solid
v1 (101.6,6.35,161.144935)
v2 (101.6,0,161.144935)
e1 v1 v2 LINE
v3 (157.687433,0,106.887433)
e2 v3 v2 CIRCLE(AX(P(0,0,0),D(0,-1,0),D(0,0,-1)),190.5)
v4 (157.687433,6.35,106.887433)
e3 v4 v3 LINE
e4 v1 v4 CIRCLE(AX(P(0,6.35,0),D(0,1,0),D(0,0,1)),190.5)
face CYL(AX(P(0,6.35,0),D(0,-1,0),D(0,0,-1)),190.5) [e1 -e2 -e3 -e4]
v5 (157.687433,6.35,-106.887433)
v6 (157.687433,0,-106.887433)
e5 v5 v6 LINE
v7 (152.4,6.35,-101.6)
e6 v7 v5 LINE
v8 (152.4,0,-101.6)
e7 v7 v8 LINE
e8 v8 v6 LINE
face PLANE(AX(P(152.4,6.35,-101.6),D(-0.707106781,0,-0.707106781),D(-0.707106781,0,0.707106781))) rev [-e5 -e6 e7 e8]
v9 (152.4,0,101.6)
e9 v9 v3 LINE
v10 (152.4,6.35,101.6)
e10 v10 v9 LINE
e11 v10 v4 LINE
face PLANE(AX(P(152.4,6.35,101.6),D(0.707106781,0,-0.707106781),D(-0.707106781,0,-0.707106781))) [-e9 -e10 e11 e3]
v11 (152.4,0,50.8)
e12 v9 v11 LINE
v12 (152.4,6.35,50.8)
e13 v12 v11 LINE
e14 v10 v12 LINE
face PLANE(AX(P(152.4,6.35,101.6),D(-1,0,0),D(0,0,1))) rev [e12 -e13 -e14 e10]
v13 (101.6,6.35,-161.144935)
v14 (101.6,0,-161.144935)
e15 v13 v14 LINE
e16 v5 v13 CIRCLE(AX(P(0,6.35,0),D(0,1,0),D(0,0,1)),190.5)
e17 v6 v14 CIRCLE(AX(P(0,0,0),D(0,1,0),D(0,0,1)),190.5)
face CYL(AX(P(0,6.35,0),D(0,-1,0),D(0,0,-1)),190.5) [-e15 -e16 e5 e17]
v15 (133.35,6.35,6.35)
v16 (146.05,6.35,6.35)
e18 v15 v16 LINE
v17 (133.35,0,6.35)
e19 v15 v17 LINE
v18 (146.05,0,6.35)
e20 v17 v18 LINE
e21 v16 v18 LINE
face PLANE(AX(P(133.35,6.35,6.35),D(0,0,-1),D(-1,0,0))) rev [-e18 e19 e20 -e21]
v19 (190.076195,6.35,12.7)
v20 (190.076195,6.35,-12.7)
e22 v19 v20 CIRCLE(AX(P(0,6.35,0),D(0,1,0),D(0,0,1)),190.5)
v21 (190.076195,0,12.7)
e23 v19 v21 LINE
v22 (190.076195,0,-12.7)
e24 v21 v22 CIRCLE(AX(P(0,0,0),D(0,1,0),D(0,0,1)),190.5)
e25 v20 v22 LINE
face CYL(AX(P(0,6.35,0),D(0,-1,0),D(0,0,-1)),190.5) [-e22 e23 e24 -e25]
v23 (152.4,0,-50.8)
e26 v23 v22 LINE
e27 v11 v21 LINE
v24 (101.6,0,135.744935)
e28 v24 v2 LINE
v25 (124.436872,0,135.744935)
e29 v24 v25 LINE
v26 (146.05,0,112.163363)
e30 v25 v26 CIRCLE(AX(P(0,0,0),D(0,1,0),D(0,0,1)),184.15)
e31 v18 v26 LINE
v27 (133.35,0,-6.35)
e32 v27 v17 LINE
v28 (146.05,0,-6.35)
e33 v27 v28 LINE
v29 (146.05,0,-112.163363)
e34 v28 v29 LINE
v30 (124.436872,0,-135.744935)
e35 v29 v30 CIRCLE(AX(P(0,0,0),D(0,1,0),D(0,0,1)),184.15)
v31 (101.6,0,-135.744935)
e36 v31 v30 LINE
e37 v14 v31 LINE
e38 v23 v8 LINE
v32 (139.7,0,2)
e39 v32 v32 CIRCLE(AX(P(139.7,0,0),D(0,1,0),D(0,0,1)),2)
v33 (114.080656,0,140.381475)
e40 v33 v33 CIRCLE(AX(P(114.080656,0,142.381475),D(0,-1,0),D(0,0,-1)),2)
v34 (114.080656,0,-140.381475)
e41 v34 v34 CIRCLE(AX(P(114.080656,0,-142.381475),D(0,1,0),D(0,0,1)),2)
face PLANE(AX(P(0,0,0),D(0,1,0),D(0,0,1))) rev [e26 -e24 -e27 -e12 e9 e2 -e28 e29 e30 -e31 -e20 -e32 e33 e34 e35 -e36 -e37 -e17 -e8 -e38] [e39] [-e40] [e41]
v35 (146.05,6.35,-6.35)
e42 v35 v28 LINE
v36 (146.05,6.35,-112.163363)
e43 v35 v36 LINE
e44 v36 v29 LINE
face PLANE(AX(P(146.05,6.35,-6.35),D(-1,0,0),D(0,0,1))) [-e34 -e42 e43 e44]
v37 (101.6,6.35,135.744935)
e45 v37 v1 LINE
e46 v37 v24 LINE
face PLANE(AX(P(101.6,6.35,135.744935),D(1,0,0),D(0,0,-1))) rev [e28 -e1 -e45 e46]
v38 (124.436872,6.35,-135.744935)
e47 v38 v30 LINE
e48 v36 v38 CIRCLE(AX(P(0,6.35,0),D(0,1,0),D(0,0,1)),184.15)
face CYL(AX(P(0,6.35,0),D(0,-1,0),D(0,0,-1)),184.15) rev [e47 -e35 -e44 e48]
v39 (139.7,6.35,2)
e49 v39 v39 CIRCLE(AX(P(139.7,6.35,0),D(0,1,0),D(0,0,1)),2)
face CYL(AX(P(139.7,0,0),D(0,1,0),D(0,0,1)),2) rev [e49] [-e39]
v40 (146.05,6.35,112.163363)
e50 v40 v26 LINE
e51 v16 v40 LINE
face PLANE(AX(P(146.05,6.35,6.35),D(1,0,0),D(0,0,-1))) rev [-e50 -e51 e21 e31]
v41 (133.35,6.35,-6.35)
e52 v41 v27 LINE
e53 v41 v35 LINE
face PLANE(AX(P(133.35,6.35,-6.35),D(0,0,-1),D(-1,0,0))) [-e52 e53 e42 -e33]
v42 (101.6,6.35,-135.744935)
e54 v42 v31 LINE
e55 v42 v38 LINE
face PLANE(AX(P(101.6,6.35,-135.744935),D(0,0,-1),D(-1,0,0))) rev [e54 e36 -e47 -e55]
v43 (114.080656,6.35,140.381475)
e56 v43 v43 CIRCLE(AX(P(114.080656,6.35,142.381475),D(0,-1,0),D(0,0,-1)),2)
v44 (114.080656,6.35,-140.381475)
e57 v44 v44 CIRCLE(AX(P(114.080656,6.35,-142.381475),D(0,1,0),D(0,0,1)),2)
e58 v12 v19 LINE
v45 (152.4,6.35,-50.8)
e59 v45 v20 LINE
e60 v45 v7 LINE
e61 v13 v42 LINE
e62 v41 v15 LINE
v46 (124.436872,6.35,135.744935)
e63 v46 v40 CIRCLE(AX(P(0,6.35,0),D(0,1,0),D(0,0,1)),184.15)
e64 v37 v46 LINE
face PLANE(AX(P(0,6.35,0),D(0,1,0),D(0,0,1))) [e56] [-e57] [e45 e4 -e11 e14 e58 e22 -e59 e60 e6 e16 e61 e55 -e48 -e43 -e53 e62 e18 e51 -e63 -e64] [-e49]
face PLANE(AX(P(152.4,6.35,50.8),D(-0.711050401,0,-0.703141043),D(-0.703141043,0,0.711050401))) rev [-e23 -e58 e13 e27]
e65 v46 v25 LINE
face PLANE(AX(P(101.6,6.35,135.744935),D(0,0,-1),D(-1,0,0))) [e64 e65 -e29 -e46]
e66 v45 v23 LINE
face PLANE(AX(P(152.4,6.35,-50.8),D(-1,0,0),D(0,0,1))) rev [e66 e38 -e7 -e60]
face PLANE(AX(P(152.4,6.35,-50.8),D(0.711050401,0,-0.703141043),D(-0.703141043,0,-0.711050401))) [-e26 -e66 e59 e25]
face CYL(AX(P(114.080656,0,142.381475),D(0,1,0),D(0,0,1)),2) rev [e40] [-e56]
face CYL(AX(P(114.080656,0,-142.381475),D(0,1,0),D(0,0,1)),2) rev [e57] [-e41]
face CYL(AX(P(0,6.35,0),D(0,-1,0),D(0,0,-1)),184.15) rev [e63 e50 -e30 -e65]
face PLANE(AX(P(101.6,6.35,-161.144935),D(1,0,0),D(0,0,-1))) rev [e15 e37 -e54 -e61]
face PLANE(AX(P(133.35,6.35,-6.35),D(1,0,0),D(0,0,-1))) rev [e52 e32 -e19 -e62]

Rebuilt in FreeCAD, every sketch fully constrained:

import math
import FreeCAD as App
import Part
import Sketcher

V = App.Vector
Q = App.Units.Quantity

doc = App.newDocument("Part")
body = doc.addObject("PartDesign::Body", "Body")

# Sketch on XZ plane
sketch1 = body.newObject("Sketcher::SketchObject", "Sketch")
sketch1.AttachmentSupport = (doc.getObject("XZ_Plane"), [""])
sketch1.MapMode = "FlatFace"
sketch1.addGeometry(Part.LineSegment(V(152.4, 101.6, 0), V(152.4, 50.8, 0)), False)
sketch1.addGeometry(Part.LineSegment(V(152.4, 50.8, 0), V(190.076195, 12.7, 0)), False)
sketch1.addGeometry(Part.ArcOfCircle(Part.Circle(V(0, 0, 0), V(0, 0, 1), 190.5), math.radians(-3.822554), math.radians(3.822554)), False)
sketch1.addGeometry(Part.LineSegment(V(190.076195, -12.7, 0), V(152.4, -50.8, 0)), False)
sketch1.addGeometry(Part.LineSegment(V(152.4, -50.8, 0), V(152.4, -101.6, 0)), False)
sketch1.addGeometry(Part.LineSegment(V(152.4, -101.6, 0), V(157.687433, -106.887433, 0)), False)
sketch1.addGeometry(Part.ArcOfCircle(Part.Circle(V(0, 0, 0), V(0, 0, 1), 190.5), math.radians(-36.869898), math.radians(-34.131135)), False)
sketch1.addGeometry(Part.ArcOfCircle(Part.Circle(V(0, 0, 0), V(0, 0, 1), 190.5), math.radians(-57.769047), math.radians(-36.869898)), False)
sketch1.addGeometry(Part.LineSegment(V(101.6, -161.144935, 0), V(101.6, -135.744935, 0)), False)
sketch1.addGeometry(Part.LineSegment(V(101.6, -135.744935, 0), V(124.436872, -135.744935, 0)), False)
sketch1.addGeometry(Part.ArcOfCircle(Part.Circle(V(0, 0, 0), V(0, 0, 1), 184.15), math.radians(-47.488632), math.radians(-37.523513)), False)
sketch1.addGeometry(Part.LineSegment(V(146.05, -112.163363, 0), V(146.05, -6.35, 0)), False)
sketch1.addGeometry(Part.LineSegment(V(146.05, -6.35, 0), V(133.35, -6.35, 0)), False)
sketch1.addGeometry(Part.LineSegment(V(133.35, -6.35, 0), V(133.35, 6.35, 0)), False)
sketch1.addGeometry(Part.LineSegment(V(133.35, 6.35, 0), V(146.05, 6.35, 0)), False)
sketch1.addGeometry(Part.LineSegment(V(146.05, 6.35, 0), V(146.05, 112.163363, 0)), False)
sketch1.addGeometry(Part.ArcOfCircle(Part.Circle(V(0, 0, 0), V(0, 0, 1), 184.15), math.radians(37.523513), math.radians(47.488632)), False)
sketch1.addGeometry(Part.LineSegment(V(124.436872, 135.744935, 0), V(101.6, 135.744935, 0)), False)
sketch1.addGeometry(Part.LineSegment(V(101.6, 135.744935, 0), V(101.6, 161.144935, 0)), False)
sketch1.addGeometry(Part.ArcOfCircle(Part.Circle(V(0, 0, 0), V(0, 0, 1), 190.5), math.radians(36.869898), math.radians(57.769047)), False)
sketch1.addGeometry(Part.ArcOfCircle(Part.Circle(V(0, 0, 0), V(0, 0, 1), 190.5), math.radians(34.131135), math.radians(36.869898)), False)
sketch1.addGeometry(Part.LineSegment(V(157.687433, 106.887433, 0), V(152.4, 101.6, 0)), False)
sketch1.addConstraint(Sketcher.Constraint("Coincident", 0, 2, 1, 1))
sketch1.addConstraint(Sketcher.Constraint("Coincident", 1, 2, 2, 2))
sketch1.addConstraint(Sketcher.Constraint("Coincident", 2, 1, 3, 1))
sketch1.addConstraint(Sketcher.Constraint("Coincident", 3, 2, 4, 1))
sketch1.addConstraint(Sketcher.Constraint("Coincident", 4, 2, 5, 1))
sketch1.addConstraint(Sketcher.Constraint("Coincident", 5, 2, 6, 2))
sketch1.addConstraint(Sketcher.Constraint("Tangent", 6, 1, 7, 2))
sketch1.addConstraint(Sketcher.Constraint("Coincident", 7, 1, 8, 1))
sketch1.addConstraint(Sketcher.Constraint("Coincident", 8, 2, 9, 1))
sketch1.addConstraint(Sketcher.Constraint("Coincident", 9, 2, 10, 1))
sketch1.addConstraint(Sketcher.Constraint("Coincident", 10, 2, 11, 1))
sketch1.addConstraint(Sketcher.Constraint("Coincident", 11, 2, 12, 1))
sketch1.addConstraint(Sketcher.Constraint("Coincident", 12, 2, 13, 1))
sketch1.addConstraint(Sketcher.Constraint("Coincident", 13, 2, 14, 1))
sketch1.addConstraint(Sketcher.Constraint("Coincident", 14, 2, 15, 1))
sketch1.addConstraint(Sketcher.Constraint("Coincident", 15, 2, 16, 1))
sketch1.addConstraint(Sketcher.Constraint("Coincident", 16, 2, 17, 1))
sketch1.addConstraint(Sketcher.Constraint("Coincident", 17, 2, 18, 1))
sketch1.addConstraint(Sketcher.Constraint("Coincident", 18, 2, 19, 2))
sketch1.addConstraint(Sketcher.Constraint("Tangent", 19, 1, 20, 2))
sketch1.addConstraint(Sketcher.Constraint("Coincident", 20, 1, 21, 1))
sketch1.addConstraint(Sketcher.Constraint("Coincident", 21, 2, 0, 1))
sketch1.addConstraint(Sketcher.Constraint("Vertical", 0))
sketch1.addConstraint(Sketcher.Constraint("Vertical", 4))
sketch1.addConstraint(Sketcher.Constraint("Vertical", 8))
sketch1.addConstraint(Sketcher.Constraint("Horizontal", 9))
sketch1.addConstraint(Sketcher.Constraint("Vertical", 11))
sketch1.addConstraint(Sketcher.Constraint("Horizontal", 12))
sketch1.addConstraint(Sketcher.Constraint("Vertical", 13))
sketch1.addConstraint(Sketcher.Constraint("Horizontal", 14))
sketch1.addConstraint(Sketcher.Constraint("Vertical", 15))
sketch1.addConstraint(Sketcher.Constraint("Horizontal", 17))
sketch1.addConstraint(Sketcher.Constraint("Vertical", 18))
sketch1.addConstraint(Sketcher.Constraint("Coincident", 2, 3, -1, 1))
sketch1.addConstraint(Sketcher.Constraint("Coincident", 6, 3, -1, 1))
sketch1.addConstraint(Sketcher.Constraint("Coincident", 10, 3, -1, 1))
sketch1.addConstraint(Sketcher.Constraint("Coincident", 16, 3, -1, 1))
sketch1.addConstraint(Sketcher.Constraint("Coincident", 19, 3, -1, 1))
sketch1.addConstraint(Sketcher.Constraint("Equal", 2, 6))
sketch1.addConstraint(Sketcher.Constraint("Equal", 6, 7))
sketch1.addConstraint(Sketcher.Constraint("Equal", 10, 16))
sketch1.addConstraint(Sketcher.Constraint("Equal", 7, 19))
sketch1.addConstraint(Sketcher.Constraint("Equal", 19, 20))
sketch1.addConstraint(Sketcher.Constraint("Symmetric", 0, 2, 3, 2, -1))
sketch1.addConstraint(Sketcher.Constraint("Symmetric", 11, 2, 14, 2, -1))
sketch1.addConstraint(Sketcher.Constraint("Symmetric", 8, 2, 17, 2, -1))
sketch1.addConstraint(Sketcher.Constraint("Perpendicular", 5, 21))
sketch1.addConstraint(Sketcher.Constraint("Vertical", 1, 2, 2, 1))
sketch1.addConstraint(Sketcher.Constraint("Vertical", 4, 2, 6, 1))
sketch1.addConstraint(Sketcher.Constraint("Vertical", 6, 1, 19, 1))
sketch1.addConstraint(Sketcher.Constraint("Vertical", 5, 2, 20, 1))
sketch1.addConstraint(Sketcher.Constraint("Equal", 0, 4))
sketch1.addConstraint(Sketcher.Constraint("Equal", 14, 13))
sketch1.addConstraint(Sketcher.Constraint("Radius", 2, Q("7.5 in")))
sketch1.addConstraint(Sketcher.Constraint("DistanceY", 0, 2, 0, 1, Q("2 in")))
sketch1.addConstraint(Sketcher.Constraint("DistanceY", 8, 1, 8, 2, Q("1 in")))
sketch1.addConstraint(Sketcher.Constraint("Radius", 10, Q("7.25 in")))
sketch1.addConstraint(Sketcher.Constraint("DistanceX", 12, 2, 12, 1, Q("0.5 in")))
sketch1.addConstraint(Sketcher.Constraint("DistanceX", -1, 1, 0, 2, Q("6 in")))
sketch1.addConstraint(Sketcher.Constraint("DistanceY", -1, 1, 0, 2, Q("2 in")))
sketch1.addConstraint(Sketcher.Constraint("DistanceX", -1, 1, 8, 2, Q("4 in")))
sketch1.addConstraint(Sketcher.Constraint("DistanceY", 2, 1, 1, 2, Q("1 in")))
sketch1.addConstraint(Sketcher.Constraint("DistanceX", -1, 1, 10, 2, Q("5.75 in")))
pad1 = body.newObject("PartDesign::Pad", "Pad")
pad1.Profile = sketch1
pad1.Length = Q("0.25 in")
pad1.Reversed = True

# Sketch on XZ plane
sketch2 = body.newObject("Sketcher::SketchObject", "Sketch001")
sketch2.AttachmentSupport = (doc.getObject("XZ_Plane"), [""])
sketch2.MapMode = "FlatFace"
sketch2.AttachmentOffset = App.Placement(V(0, 0, -0.25 * 25.4), App.Rotation())
sketch2.addGeometry(Part.Circle(V(139.7, 0, 0), V(0, 0, 1), 2), False)
sketch2.addConstraint(Sketcher.Constraint("PointOnObject", 0, 3, -1))
sketch2.addConstraint(Sketcher.Constraint("DistanceX", -1, 1, 0, 3, Q("5.5 in")))
sketch2.addConstraint(Sketcher.Constraint("Diameter", 0, Q("4 mm")))
pocket1 = body.newObject("PartDesign::Pocket", "Pocket")
pocket1.Profile = sketch2
pocket1.Length = Q("0.25 in")
pocket1.Reversed = True

# Sketch on XZ plane
sketch3 = body.newObject("Sketcher::SketchObject", "Sketch002")
sketch3.AttachmentSupport = (doc.getObject("XZ_Plane"), [""])
sketch3.MapMode = "FlatFace"
sketch3.AttachmentOffset = App.Placement(V(0, 0, -0.25 * 25.4), App.Rotation())
sketch3.addGeometry(Part.Circle(V(114.080656, -142.381475, 0), V(0, 0, 1), 2), False)
sketch3.addGeometry(Part.Circle(V(114.080656, 142.381475, 0), V(0, 0, 1), 2), False)
sketch3.addConstraint(Sketcher.Constraint("Equal", 0, 1))
sketch3.addConstraint(Sketcher.Constraint("Symmetric", 0, 3, 1, 3, -1))
sketch3.addConstraint(Sketcher.Constraint("Diameter", 0, Q("4 mm")))
sketch3.addConstraint(Sketcher.Constraint("DistanceY", 0, 3, 1, 3, Q("284.76295 mm")))
sketch3.addConstraint(Sketcher.Constraint("DistanceX", -1, 1, 0, 3, Q("114.080656 mm")))
pocket2 = body.newObject("PartDesign::Pocket", "Pocket001")
pocket2.Profile = sketch3
pocket2.Length = Q("0.25 in")
pocket2.Reversed = True

doc.recompute()
